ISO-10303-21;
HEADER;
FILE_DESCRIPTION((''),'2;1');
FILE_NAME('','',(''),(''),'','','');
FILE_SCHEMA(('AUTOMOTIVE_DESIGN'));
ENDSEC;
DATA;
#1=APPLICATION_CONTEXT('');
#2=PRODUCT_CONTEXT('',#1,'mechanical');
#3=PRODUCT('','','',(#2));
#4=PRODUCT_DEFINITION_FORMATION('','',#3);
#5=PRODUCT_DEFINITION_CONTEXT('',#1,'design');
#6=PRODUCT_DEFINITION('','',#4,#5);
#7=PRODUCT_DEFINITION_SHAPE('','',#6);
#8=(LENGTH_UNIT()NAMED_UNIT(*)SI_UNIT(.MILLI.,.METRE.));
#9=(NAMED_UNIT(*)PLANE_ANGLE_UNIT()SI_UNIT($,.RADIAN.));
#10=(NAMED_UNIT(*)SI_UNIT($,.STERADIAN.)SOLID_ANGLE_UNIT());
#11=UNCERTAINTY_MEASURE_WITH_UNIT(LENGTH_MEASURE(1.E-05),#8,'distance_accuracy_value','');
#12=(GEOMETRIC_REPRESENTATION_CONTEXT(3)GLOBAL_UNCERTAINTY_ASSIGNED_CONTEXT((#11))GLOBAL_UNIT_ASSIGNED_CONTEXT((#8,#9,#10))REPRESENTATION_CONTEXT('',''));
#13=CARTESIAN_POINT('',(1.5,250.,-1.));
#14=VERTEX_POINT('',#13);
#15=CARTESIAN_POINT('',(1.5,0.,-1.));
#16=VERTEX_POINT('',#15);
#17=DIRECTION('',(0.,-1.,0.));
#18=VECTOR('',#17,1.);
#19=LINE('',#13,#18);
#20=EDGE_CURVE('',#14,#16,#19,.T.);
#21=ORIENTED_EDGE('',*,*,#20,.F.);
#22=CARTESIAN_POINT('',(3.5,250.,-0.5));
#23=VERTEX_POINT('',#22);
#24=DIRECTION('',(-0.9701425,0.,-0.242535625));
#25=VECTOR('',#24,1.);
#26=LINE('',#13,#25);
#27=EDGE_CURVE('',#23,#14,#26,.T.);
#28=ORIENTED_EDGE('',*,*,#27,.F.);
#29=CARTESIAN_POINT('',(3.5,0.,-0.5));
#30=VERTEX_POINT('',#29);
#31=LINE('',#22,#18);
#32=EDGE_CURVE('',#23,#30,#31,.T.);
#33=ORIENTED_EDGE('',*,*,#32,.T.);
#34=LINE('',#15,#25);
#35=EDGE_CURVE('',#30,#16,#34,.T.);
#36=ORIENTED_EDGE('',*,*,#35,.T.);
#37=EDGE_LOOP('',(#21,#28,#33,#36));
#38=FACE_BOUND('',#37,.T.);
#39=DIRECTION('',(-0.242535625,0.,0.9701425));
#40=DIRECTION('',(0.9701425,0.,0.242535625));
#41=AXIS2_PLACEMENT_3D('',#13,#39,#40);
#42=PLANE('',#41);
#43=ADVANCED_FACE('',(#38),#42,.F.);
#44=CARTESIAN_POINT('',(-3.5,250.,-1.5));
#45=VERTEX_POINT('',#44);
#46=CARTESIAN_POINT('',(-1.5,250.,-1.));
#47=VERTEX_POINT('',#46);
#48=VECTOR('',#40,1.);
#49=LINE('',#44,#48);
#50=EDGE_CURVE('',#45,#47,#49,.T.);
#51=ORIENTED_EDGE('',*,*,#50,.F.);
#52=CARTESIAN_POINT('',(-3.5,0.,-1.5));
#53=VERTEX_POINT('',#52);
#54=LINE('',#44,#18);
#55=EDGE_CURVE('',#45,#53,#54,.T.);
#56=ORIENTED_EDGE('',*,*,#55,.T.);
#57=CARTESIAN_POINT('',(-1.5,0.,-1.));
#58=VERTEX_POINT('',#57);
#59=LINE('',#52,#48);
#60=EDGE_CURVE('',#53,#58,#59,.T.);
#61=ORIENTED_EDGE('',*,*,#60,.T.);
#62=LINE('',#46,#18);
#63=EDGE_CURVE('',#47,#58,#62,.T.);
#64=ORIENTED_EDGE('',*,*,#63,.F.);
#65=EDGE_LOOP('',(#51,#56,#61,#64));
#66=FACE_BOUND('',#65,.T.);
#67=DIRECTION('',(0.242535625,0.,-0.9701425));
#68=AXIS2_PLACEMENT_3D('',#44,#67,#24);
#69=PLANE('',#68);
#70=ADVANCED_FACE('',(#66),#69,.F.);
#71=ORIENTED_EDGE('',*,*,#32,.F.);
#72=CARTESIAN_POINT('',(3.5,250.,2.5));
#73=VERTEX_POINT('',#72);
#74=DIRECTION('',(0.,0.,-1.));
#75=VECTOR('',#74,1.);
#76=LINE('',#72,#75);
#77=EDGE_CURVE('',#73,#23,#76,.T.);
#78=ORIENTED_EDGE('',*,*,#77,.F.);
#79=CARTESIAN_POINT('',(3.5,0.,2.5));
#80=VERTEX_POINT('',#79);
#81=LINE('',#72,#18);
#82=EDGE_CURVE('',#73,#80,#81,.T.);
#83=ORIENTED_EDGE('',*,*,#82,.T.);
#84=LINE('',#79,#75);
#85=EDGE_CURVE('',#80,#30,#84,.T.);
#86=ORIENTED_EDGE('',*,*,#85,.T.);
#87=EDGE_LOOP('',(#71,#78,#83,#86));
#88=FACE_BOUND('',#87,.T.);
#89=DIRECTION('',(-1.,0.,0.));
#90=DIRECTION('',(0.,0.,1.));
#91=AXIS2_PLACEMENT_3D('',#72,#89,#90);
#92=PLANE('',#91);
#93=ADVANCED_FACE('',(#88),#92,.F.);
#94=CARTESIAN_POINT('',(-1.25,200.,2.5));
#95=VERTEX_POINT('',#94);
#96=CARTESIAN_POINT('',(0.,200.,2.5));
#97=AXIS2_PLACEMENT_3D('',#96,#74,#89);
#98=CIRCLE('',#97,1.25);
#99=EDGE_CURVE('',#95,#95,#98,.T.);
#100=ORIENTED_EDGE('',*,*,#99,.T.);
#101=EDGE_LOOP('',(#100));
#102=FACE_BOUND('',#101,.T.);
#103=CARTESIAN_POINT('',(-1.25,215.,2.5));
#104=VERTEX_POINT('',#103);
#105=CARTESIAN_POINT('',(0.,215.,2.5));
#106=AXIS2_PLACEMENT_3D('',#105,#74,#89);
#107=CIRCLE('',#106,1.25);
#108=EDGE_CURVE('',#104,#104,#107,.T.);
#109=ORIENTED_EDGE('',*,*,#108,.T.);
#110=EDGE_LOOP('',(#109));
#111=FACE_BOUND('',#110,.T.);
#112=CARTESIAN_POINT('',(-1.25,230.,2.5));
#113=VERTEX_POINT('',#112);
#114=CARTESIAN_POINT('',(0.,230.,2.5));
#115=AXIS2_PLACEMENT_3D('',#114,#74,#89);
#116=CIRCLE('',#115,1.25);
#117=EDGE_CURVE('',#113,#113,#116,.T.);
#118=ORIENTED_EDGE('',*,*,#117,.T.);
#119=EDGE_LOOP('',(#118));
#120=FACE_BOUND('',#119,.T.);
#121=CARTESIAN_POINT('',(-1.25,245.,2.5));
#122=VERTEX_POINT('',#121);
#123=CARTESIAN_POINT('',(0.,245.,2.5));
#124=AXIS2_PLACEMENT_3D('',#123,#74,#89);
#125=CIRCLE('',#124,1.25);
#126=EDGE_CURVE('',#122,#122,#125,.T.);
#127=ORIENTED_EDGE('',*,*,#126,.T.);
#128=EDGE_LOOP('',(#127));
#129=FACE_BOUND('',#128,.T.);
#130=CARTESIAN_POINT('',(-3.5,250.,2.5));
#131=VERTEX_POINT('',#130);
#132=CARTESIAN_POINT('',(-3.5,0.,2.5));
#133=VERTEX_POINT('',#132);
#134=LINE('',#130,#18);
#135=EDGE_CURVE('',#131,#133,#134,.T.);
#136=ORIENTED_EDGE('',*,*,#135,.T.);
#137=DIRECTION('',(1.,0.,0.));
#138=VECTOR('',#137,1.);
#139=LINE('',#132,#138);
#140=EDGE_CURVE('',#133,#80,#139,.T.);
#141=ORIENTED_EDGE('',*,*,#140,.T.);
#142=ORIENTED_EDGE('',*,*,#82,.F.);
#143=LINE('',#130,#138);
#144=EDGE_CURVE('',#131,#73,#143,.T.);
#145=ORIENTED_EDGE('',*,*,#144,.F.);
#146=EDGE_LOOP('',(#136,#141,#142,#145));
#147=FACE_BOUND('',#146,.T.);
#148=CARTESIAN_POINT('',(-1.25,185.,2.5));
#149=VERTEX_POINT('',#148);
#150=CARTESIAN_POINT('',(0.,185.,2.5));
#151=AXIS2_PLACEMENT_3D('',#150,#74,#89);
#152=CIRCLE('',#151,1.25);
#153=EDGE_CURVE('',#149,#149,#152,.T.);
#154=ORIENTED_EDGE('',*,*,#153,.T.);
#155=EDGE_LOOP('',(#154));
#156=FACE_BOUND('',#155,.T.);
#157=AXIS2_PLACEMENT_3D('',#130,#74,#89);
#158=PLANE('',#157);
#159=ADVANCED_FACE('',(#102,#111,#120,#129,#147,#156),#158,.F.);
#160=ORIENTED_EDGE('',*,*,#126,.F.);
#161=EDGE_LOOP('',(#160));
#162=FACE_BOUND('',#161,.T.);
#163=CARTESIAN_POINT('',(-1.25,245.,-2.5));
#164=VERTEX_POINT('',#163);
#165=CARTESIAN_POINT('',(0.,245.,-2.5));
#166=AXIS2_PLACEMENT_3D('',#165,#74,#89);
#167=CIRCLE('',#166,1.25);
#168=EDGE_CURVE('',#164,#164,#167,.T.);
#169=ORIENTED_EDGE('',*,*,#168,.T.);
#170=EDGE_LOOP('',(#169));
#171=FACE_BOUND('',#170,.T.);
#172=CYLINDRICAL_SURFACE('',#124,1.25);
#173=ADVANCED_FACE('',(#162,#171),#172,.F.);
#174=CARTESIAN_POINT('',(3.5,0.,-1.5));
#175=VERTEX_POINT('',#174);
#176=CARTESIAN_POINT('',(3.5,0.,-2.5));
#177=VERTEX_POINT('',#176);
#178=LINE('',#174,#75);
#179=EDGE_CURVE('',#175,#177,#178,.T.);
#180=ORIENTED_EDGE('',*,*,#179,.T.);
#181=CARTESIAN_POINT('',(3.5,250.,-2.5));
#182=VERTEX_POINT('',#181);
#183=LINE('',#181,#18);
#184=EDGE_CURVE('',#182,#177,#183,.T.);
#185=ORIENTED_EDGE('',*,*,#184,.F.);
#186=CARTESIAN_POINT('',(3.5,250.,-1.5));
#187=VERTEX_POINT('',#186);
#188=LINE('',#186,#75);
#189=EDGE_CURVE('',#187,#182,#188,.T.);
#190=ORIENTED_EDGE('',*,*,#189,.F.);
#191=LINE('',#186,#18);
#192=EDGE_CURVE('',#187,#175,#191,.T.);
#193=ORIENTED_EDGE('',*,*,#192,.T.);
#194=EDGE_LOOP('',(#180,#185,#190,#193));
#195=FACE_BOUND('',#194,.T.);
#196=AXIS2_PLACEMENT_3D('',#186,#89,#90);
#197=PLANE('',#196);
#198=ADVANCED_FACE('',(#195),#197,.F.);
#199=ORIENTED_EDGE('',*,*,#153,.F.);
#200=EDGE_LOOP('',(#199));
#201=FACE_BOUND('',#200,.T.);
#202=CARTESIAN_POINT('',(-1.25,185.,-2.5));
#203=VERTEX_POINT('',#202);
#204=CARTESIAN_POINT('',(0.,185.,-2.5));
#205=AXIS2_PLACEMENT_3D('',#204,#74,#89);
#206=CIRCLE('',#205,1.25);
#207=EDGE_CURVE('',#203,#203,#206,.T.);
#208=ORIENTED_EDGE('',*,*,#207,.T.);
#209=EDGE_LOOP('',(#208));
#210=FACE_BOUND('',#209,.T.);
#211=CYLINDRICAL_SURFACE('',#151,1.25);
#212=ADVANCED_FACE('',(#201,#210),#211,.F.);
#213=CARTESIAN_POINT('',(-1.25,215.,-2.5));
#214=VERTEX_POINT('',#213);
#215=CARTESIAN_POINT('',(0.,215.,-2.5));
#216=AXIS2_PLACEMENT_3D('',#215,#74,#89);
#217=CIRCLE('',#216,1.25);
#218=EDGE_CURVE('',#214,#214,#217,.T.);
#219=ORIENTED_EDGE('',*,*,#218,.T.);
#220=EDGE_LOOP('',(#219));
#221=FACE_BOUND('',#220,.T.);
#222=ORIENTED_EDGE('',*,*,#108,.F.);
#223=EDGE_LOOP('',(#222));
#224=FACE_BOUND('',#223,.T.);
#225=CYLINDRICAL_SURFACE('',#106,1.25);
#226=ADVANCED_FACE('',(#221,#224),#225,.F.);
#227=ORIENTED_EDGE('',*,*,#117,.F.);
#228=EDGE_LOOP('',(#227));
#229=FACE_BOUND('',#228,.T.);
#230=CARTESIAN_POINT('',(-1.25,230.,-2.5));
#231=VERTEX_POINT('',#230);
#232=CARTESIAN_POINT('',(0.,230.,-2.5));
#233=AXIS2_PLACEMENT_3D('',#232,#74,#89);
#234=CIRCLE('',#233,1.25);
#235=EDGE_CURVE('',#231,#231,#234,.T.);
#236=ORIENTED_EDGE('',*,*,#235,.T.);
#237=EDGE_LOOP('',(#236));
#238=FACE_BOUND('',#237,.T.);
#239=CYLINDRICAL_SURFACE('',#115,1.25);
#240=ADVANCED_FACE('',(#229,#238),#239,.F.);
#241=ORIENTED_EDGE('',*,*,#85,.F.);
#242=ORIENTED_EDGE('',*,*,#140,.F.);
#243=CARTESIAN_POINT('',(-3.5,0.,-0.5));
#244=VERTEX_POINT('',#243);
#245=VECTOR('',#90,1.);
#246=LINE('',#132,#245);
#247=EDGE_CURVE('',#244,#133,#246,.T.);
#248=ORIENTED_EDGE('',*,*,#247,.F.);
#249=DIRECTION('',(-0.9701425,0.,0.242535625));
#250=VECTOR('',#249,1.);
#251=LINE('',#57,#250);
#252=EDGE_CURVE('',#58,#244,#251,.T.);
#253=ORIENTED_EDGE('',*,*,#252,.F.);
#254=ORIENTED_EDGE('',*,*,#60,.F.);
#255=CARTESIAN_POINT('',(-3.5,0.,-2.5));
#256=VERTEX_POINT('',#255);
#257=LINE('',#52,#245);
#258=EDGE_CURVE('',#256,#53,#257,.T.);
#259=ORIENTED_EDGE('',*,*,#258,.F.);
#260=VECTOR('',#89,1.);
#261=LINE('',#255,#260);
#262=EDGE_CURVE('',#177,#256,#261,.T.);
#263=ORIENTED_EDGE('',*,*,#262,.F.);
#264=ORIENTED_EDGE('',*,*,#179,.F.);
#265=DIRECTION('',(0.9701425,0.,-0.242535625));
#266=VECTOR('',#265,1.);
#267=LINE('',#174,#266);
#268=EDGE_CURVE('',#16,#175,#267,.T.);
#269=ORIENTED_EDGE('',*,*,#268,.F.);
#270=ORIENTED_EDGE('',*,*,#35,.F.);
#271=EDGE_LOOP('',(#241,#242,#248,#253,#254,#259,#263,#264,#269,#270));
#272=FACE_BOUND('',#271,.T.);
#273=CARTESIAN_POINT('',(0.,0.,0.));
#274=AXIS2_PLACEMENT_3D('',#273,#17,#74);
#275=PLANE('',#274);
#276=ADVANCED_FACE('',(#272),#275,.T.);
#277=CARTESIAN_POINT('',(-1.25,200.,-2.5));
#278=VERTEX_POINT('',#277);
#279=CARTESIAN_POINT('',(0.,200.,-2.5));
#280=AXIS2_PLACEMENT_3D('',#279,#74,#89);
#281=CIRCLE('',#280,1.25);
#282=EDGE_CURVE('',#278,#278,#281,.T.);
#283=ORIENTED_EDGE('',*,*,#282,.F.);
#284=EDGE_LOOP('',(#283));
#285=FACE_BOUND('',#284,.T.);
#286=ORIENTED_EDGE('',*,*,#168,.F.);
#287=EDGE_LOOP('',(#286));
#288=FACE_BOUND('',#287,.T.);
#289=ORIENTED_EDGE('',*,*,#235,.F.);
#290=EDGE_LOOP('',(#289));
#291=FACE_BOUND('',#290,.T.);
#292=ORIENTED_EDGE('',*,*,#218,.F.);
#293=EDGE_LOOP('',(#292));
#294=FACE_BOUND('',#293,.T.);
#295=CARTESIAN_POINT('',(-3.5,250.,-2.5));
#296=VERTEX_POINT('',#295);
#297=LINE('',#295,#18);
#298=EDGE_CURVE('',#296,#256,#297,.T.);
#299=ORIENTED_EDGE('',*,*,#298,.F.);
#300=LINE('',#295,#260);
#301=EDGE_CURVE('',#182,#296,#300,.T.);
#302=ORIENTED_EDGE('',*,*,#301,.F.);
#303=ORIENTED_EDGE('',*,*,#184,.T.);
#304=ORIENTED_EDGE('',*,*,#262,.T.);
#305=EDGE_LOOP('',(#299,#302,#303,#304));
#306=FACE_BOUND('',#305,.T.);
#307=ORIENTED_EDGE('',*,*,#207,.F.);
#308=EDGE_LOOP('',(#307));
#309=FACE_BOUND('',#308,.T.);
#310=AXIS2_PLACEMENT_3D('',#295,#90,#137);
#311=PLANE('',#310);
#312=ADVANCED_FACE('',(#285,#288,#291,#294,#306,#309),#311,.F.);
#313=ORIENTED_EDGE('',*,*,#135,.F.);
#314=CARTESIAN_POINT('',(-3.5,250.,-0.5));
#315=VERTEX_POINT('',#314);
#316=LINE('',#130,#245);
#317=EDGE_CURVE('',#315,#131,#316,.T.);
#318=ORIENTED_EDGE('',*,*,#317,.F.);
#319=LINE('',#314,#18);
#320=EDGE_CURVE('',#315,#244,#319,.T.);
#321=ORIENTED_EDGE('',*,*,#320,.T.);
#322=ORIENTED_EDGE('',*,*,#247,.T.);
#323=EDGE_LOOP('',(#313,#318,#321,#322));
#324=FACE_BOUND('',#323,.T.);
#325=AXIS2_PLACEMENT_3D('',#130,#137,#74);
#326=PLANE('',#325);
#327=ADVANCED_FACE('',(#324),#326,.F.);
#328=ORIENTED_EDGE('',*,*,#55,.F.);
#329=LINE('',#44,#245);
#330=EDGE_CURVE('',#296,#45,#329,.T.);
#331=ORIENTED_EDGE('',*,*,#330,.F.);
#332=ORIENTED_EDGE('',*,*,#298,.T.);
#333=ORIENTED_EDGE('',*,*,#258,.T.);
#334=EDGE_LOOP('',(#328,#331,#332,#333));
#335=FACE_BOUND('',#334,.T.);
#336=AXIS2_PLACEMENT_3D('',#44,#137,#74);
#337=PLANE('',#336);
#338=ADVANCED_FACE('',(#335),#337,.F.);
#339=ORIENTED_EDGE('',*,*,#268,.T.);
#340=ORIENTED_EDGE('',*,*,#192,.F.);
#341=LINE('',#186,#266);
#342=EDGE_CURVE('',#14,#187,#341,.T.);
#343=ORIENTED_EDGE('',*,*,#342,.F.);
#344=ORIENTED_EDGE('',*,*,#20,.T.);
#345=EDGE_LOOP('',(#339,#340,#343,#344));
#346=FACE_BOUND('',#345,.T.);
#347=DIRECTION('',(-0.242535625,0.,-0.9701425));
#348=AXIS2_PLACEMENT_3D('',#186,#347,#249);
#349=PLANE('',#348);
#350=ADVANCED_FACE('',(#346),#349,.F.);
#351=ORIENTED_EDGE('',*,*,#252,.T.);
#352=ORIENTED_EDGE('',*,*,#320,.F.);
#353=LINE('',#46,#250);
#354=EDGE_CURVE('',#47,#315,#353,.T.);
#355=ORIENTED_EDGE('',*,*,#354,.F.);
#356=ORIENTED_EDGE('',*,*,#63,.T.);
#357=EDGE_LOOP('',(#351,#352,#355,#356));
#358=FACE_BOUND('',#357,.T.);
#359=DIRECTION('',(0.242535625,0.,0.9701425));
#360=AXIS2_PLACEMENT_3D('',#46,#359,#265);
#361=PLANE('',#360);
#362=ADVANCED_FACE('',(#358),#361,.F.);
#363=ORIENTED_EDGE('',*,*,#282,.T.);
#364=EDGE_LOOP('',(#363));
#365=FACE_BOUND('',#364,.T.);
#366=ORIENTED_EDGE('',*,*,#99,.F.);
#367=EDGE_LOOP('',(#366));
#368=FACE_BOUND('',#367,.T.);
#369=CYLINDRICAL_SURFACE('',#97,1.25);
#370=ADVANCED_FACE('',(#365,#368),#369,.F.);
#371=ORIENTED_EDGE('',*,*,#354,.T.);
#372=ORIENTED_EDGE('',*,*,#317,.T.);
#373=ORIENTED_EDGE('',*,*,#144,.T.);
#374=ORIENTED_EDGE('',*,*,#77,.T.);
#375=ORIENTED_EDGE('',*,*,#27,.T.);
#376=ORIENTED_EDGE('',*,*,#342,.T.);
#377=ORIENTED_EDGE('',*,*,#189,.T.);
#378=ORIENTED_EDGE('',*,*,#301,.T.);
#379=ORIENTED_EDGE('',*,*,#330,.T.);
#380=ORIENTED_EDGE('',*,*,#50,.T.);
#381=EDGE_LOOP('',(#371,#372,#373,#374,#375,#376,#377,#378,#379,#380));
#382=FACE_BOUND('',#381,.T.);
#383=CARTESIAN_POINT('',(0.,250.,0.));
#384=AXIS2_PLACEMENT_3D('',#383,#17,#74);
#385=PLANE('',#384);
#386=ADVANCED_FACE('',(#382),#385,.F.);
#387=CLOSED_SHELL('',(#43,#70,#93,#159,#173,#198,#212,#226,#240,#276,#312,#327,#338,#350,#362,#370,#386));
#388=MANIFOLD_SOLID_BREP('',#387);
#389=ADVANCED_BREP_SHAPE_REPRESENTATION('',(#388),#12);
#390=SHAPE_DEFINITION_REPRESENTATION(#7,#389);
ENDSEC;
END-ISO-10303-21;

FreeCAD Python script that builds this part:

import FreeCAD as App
import Part
import Sketcher

V = App.Vector


def add_polygon(sketch, points):
    """Adds a closed chain of lines whose ends are joined by coincident constraints."""
    first, n = sketch.GeometryCount, len(points)
    for a, b in zip(points, points[1:] + points[:1]):
        sketch.addGeometry(Part.LineSegment(App.Vector(*a, 0), App.Vector(*b, 0)), False)
    for i in range(n):
        sketch.addConstraint(Sketcher.Constraint("Coincident", first + i, 2, first + (i + 1) % n, 1))

doc = App.newDocument("Part")
body = doc.addObject("PartDesign::Body", "Body")

# Sketch on XZ plane
sketch1 = body.newObject("Sketcher::SketchObject", "Sketch")
sketch1.AttachmentSupport = (doc.getObject("XZ_Plane"), [""])
sketch1.MapMode = "FlatFace"
add_polygon(sketch1, [(-3.5, -1.5), (-1.5, -1), (-3.5, -0.5), (-3.5, 2.5), (3.5, 2.5), (3.5, -0.5), (1.5, -1), (3.5, -1.5), (3.5, -2.5), (-3.5, -2.5)])  # lines 0-9
sketch1.addConstraint(Sketcher.Constraint("Vertical", 2))
sketch1.addConstraint(Sketcher.Constraint("Horizontal", 3))
sketch1.addConstraint(Sketcher.Constraint("Vertical", 4))
sketch1.addConstraint(Sketcher.Constraint("Vertical", 7))
sketch1.addConstraint(Sketcher.Constraint("Horizontal", 8))
sketch1.addConstraint(Sketcher.Constraint("Vertical", 9))
sketch1.addConstraint(Sketcher.Constraint("Symmetric", 2, 2, 7, 2, -1, 1))
sketch1.addConstraint(Sketcher.Constraint("Symmetric", 1, 2, 4, 2, -2))
sketch1.addConstraint(Sketcher.Constraint("Symmetric", 0, 2, 5, 2, -2))
sketch1.addConstraint(Sketcher.Constraint("Symmetric", 6, 2, 9, 2, -2))
sketch1.addConstraint(Sketcher.Constraint("Parallel", 0, 5))
sketch1.addConstraint(Sketcher.Constraint("DistanceX", 3, 1, 3, 2, 7.0))
sketch1.addConstraint(Sketcher.Constraint("DistanceY", 2, 1, 2, 2, 3.0))
sketch1.addConstraint(Sketcher.Constraint("DistanceY", 7, 2, 7, 1, 1.0))
sketch1.addConstraint(Sketcher.Constraint("DistanceX", 1, 2, 0, 2, 2.0))
sketch1.addConstraint(Sketcher.Constraint("DistanceY", 6, 2, 4, 2, 1.0))
pad1 = body.newObject("PartDesign::Pad", "Pad")
pad1.Profile = sketch1
pad1.Length = 250
pad1.Reversed = True

# Sketch on XY plane
sketch2 = body.newObject("Sketcher::SketchObject", "Sketch001")
sketch2.AttachmentSupport = (doc.getObject("XY_Plane"), [""])
sketch2.MapMode = "FlatFace"
sketch2.AttachmentOffset = App.Placement(V(0, 0, -2.5), App.Rotation())
sketch2.addGeometry(Part.Circle(V(0, 245, 0), V(0, 0, 1), 1.2), False)
sketch2.addConstraint(Sketcher.Constraint("PointOnObject", 0, 3, -2))
sketch2.addConstraint(Sketcher.Constraint("Diameter", 0, 2.5))
sketch2.addConstraint(Sketcher.Constraint("DistanceY", -1, 1, 0, 3, 245.0))
pocket1 = body.newObject("PartDesign::Pocket", "Pocket")
pocket1.Profile = sketch2
pocket1.Type = "ThroughAll"
pocket1.Reversed = True
doc.recompute()

linearpattern = body.newObject("PartDesign::LinearPattern", "LinearPattern")
linearpattern.Originals = [pocket1]
linearpattern.Direction = (doc.getObject("Y_Axis"), [""])
linearpattern.Mode = "offset"
linearpattern.Offset = 15
linearpattern.Occurrences = 5
linearpattern.Reversed = True
body.Tip = linearpattern

doc.recompute()
